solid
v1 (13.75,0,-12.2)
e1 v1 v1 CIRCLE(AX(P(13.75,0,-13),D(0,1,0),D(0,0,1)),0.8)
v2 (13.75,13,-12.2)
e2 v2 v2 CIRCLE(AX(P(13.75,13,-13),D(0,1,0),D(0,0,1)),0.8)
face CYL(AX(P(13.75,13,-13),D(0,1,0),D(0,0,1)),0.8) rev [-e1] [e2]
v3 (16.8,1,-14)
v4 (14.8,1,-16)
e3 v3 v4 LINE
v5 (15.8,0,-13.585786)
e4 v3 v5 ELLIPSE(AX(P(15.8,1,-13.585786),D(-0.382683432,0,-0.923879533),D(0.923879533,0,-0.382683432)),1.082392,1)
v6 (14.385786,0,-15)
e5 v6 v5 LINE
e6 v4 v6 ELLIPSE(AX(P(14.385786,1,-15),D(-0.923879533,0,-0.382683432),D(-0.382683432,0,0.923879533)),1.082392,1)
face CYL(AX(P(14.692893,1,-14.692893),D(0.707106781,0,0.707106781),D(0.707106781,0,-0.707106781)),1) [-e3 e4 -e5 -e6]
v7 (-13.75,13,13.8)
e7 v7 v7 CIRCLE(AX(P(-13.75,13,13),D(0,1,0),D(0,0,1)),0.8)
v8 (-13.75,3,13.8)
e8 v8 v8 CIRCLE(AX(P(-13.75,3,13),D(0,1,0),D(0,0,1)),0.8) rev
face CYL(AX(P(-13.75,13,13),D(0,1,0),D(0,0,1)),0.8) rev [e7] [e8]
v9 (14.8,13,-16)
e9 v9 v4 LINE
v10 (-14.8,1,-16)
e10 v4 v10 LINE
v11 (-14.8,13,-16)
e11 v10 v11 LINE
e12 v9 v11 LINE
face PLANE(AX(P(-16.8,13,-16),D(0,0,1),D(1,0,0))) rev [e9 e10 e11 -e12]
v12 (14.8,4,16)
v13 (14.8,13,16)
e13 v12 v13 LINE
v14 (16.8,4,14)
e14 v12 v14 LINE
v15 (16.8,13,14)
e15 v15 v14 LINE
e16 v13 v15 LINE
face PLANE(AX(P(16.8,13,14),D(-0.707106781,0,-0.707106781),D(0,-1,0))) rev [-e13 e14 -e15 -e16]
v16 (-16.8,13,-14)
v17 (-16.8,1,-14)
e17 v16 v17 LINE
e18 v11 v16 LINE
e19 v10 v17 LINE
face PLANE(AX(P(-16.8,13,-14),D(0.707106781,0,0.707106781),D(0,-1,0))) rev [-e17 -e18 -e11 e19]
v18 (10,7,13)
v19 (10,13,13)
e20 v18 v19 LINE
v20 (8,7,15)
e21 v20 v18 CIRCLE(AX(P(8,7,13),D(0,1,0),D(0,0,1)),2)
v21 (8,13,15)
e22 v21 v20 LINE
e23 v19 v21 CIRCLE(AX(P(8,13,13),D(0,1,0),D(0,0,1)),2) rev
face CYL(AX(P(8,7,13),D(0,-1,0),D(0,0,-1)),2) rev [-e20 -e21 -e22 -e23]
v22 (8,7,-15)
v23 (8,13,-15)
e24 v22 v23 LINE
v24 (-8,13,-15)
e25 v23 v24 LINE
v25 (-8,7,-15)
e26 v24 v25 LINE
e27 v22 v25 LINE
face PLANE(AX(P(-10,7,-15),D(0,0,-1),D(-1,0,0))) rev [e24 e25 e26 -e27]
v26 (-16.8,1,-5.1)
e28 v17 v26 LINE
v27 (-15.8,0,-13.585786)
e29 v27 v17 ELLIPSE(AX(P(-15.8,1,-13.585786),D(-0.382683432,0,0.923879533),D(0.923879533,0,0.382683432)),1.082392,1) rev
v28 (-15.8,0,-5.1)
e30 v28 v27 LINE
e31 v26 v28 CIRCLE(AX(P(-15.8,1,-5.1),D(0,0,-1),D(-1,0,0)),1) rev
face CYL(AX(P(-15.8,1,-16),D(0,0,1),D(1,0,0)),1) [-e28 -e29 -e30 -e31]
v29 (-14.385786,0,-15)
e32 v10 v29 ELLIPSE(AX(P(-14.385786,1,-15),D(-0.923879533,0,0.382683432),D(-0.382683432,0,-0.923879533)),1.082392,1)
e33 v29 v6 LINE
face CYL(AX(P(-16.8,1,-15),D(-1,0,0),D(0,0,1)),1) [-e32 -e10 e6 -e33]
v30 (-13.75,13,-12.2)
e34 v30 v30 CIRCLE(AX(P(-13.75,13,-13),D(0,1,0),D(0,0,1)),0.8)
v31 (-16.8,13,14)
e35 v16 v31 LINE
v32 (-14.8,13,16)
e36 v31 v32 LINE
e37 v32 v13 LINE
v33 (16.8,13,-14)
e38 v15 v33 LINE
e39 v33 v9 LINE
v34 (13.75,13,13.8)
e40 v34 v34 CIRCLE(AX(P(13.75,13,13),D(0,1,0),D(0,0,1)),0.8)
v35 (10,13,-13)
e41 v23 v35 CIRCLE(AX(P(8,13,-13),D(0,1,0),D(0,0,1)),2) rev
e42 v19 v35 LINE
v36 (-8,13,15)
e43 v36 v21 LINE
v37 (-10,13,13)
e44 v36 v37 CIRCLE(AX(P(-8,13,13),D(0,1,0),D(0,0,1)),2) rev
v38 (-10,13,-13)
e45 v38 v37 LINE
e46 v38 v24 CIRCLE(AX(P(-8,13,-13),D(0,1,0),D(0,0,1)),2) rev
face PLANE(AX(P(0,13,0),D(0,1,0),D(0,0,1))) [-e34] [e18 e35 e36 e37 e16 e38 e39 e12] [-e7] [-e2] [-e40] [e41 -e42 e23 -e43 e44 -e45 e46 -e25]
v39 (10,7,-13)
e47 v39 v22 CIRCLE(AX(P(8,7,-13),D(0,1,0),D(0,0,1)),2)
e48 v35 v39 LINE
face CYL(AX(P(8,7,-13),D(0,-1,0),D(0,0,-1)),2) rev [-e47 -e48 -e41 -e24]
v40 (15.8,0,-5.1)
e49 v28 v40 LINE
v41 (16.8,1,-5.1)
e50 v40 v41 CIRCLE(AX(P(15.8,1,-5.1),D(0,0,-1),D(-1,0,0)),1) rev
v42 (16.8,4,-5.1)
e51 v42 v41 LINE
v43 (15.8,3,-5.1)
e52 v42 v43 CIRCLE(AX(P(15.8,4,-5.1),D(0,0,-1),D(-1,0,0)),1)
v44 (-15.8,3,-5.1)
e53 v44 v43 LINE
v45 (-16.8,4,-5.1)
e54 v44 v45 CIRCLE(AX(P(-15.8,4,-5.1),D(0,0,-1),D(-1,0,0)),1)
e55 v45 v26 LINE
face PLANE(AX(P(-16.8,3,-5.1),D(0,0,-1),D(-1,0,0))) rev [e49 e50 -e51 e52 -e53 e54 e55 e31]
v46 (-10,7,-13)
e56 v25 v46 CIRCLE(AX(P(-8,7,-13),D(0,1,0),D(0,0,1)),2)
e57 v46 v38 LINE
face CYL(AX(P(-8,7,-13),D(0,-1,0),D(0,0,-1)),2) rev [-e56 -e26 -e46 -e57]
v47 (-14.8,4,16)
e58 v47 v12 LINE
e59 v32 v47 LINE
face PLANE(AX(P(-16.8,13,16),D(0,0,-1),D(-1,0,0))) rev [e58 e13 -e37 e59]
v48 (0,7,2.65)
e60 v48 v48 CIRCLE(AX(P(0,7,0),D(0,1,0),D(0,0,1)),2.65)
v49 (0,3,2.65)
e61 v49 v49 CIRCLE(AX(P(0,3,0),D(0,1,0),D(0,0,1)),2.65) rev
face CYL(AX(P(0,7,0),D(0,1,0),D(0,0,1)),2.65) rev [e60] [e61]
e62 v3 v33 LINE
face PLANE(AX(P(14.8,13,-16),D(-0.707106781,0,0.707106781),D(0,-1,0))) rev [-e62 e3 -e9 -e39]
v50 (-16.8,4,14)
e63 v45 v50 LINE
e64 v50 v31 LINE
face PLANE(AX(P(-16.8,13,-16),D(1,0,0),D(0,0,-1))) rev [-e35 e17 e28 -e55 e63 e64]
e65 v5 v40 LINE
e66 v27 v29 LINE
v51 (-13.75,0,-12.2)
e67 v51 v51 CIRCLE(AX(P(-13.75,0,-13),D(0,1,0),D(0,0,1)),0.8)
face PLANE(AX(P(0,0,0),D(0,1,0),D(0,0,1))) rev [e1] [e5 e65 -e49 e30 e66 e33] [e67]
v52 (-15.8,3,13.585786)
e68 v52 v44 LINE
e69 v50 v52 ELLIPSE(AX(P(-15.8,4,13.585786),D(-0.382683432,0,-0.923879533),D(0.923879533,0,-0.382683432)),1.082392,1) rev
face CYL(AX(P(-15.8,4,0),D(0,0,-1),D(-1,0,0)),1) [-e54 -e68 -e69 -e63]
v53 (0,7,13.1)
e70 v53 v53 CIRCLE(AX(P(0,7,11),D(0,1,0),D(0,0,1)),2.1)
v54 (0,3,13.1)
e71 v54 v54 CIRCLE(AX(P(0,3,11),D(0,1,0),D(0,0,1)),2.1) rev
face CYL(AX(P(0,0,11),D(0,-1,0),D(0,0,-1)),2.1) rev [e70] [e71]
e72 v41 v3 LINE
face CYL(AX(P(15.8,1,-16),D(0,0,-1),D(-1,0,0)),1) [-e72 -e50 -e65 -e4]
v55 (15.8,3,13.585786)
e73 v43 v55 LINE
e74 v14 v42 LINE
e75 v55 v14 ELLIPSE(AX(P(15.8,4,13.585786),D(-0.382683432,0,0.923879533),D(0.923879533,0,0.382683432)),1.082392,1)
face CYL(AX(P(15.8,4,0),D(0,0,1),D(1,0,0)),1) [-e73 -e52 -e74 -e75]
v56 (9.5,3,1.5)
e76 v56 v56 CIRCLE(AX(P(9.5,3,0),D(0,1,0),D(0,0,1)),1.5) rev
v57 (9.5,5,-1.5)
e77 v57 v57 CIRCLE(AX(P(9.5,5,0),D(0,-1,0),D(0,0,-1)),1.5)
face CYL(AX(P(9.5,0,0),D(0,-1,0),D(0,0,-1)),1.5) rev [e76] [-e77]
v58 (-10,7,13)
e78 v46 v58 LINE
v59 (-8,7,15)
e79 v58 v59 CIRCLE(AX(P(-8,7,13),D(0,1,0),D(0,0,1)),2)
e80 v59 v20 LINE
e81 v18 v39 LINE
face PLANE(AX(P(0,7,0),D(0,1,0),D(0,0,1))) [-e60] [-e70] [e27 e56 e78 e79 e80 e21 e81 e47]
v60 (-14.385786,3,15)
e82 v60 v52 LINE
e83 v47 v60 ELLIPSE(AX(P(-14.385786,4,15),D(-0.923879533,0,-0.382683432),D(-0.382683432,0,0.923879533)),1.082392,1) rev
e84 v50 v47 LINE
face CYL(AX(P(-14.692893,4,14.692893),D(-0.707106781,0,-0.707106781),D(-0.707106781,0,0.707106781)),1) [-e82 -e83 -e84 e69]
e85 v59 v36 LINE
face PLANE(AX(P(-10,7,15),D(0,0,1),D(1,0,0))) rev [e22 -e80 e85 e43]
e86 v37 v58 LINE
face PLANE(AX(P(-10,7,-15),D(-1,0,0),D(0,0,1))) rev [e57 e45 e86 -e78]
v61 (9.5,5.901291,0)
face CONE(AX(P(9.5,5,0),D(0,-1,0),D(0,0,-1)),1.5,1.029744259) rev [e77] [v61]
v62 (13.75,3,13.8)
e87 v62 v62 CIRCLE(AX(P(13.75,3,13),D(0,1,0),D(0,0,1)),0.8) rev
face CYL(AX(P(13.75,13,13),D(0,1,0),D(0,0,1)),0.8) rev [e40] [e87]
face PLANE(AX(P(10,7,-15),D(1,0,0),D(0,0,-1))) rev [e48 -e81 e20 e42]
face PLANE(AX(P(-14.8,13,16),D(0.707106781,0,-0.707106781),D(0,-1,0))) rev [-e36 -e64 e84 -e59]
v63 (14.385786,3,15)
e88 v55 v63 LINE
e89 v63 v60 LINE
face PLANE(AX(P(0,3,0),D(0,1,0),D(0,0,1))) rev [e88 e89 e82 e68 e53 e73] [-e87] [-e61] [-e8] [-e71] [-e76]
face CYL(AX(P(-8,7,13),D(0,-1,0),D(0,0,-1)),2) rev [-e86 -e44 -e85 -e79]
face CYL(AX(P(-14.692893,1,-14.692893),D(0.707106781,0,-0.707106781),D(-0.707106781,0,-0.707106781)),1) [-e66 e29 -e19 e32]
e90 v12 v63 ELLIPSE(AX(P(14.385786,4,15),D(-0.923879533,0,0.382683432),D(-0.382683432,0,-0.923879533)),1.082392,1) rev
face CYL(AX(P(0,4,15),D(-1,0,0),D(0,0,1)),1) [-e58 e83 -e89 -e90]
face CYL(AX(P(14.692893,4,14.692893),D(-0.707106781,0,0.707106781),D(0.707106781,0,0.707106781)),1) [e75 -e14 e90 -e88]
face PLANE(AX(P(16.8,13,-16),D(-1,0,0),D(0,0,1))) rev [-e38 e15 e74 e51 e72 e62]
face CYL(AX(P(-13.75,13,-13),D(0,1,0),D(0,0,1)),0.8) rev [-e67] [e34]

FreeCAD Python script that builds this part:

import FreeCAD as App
import Part
import Sketcher

V = App.Vector
Q = App.Units.Quantity


def edges_at(feature, points):
    """Names of the edges that pass closest to the given points."""
    edges = feature.Shape.Edges
    near = lambda p: min(range(len(edges)), key=lambda i: edges[i].distToShape(Part.Vertex(*p))[0])
    return sorted({f"Edge{near(p) + 1}" for p in points})


def add_polygon(sketch, points):
    """Adds a closed chain of lines whose ends are joined by coincident constraints."""
    first, n = sketch.GeometryCount, len(points)
    for a, b in zip(points, points[1:] + points[:1]):
        sketch.addGeometry(Part.LineSegment(App.Vector(*a, 0), App.Vector(*b, 0)), False)
    for i in range(n):
        sketch.addConstraint(Sketcher.Constraint("Coincident", first + i, 2, first + (i + 1) % n, 1))

doc = App.newDocument("Part")
body = doc.addObject("PartDesign::Body", "Body")

sketch1 = body.newObject("Sketcher::SketchObject", "Sketch")
sketch1.AttachmentSupport = (doc.getObject("XZ_Plane"), [""])
sketch1.MapMode = "FlatFace"
add_polygon(sketch1, [(-17, -16), (-17, 16), (17, 16), (17, -16)])
sketch1.addConstraint(Sketcher.Constraint("Vertical", 0))
sketch1.addConstraint(Sketcher.Constraint("Horizontal", 1))
sketch1.addConstraint(Sketcher.Constraint("Vertical", 2))
sketch1.addConstraint(Sketcher.Constraint("Horizontal", 3))
sketch1.addConstraint(Sketcher.Constraint("Symmetric", 0, 2, 2, 2, -1, 1))
sketch1.addConstraint(Sketcher.Constraint("DistanceY", 0, 1, 0, 2, Q("32 mm")))
sketch1.addConstraint(Sketcher.Constraint("DistanceX", 1, 1, 1, 2, Q("33.6 mm")))
pad1 = body.newObject("PartDesign::Pad", "Pad")
pad1.Profile = sketch1
pad1.Length = 13
pad1.Reversed = True

sketch2 = body.newObject("Sketcher::SketchObject", "Sketch001")
sketch2.AttachmentSupport = (doc.getObject("XZ_Plane"), [""])
sketch2.MapMode = "FlatFace"
sketch2.AttachmentOffset = App.Placement(V(0, 0, -13), App.Rotation())
add_polygon(sketch2, [(-10, -15), (-10, 15), (10, 15), (10, -15)])
sketch2.addConstraint(Sketcher.Constraint("Vertical", 0))
sketch2.addConstraint(Sketcher.Constraint("Horizontal", 1))
sketch2.addConstraint(Sketcher.Constraint("Vertical", 2))
sketch2.addConstraint(Sketcher.Constraint("Horizontal", 3))
sketch2.addConstraint(Sketcher.Constraint("Symmetric", 0, 2, 2, 2, -1, 1))
sketch2.addConstraint(Sketcher.Constraint("DistanceX", 1, 1, 1, 2, Q("20 mm")))
sketch2.addConstraint(Sketcher.Constraint("DistanceY", 0, 1, 0, 2, Q("30 mm")))
pocket1 = body.newObject("PartDesign::Pocket", "Pocket")
pocket1.Profile = sketch2
pocket1.Length = 6
pocket1.Reversed = True

sketch3 = body.newObject("Sketcher::SketchObject", "Sketch002")
sketch3.AttachmentSupport = (doc.getObject("XZ_Plane"), [""])
sketch3.MapMode = "FlatFace"
sketch3.AttachmentOffset = App.Placement(V(0, 0, -13), App.Rotation())
sketch3.addGeometry(Part.Circle(V(-13.8, -13, 0), V(0, 0, 1), 0.8), False)
sketch3.addGeometry(Part.Circle(V(13.8, -13, 0), V(0, 0, 1), 0.8), False)
sketch3.addGeometry(Part.Circle(V(13.8, 13, 0), V(0, 0, 1), 0.8), False)
sketch3.addGeometry(Part.Circle(V(-13.8, 13, 0), V(0, 0, 1), 0.8), False)
sketch3.addConstraint(Sketcher.Constraint("Equal", 0, 1))
sketch3.addConstraint(Sketcher.Constraint("Equal", 1, 2))
sketch3.addConstraint(Sketcher.Constraint("Equal", 2, 3))
sketch3.addConstraint(Sketcher.Constraint("Symmetric", 0, 3, 2, 3, -1, 1))
sketch3.addConstraint(Sketcher.Constraint("Symmetric", 1, 3, 3, 3, -1, 1))
sketch3.addConstraint(Sketcher.Constraint("Symmetric", 0, 3, 1, 3, -2))
sketch3.addConstraint(Sketcher.Constraint("Diameter", 0, Q("1.6 mm")))
sketch3.addConstraint(Sketcher.Constraint("DistanceY", 0, 3, -1, 1, Q("13 mm")))
sketch3.addConstraint(Sketcher.Constraint("DistanceX", 0, 3, 1, 3, Q("27.5 mm")))
doc.recompute()
hole = body.newObject("PartDesign::Hole", "Hole")
hole.Profile = sketch3
hole.ThreadType = "None"
hole.Diameter = 1.6
hole.DepthType = "ThroughAll"
hole.Reversed = True
doc.recompute()

fillet = body.newObject("PartDesign::Fillet", "Fillet")
fillet.Base = (hole, edges_at(hole, [
    (-10, 10, 15),
    (-10, 10, -15),
    (10, 10, -15),
    (10, 10, 15),
]))
fillet.Radius = 2

sketch4 = body.newObject("Sketcher::SketchObject", "Sketch003")
sketch4.AttachmentSupport = (doc.getObject("XZ_Plane"), [""])
sketch4.MapMode = "FlatFace"
sketch4.AttachmentOffset = App.Placement(V(0, 0, -7), App.Rotation())
sketch4.addGeometry(Part.Circle(V(0, 0, 0), V(0, 0, 1), 2.6), False)
sketch4.addConstraint(Sketcher.Constraint("Coincident", 0, 3, -1, 1))
sketch4.addConstraint(Sketcher.Constraint("Diameter", 0, Q("5.3 mm")))
doc.recompute()
hole2 = body.newObject("PartDesign::Hole", "Hole001")
hole2.Profile = sketch4
hole2.ThreadType = "None"
hole2.Diameter = 5.3
hole2.DepthType = "ThroughAll"
hole2.Reversed = True

sketch5 = body.newObject("Sketcher::SketchObject", "Sketch004")
sketch5.AttachmentSupport = (doc.getObject("XZ_Plane"), [""])
sketch5.MapMode = "FlatFace"
sketch5.addGeometry(Part.Circle(V(9.5, 0, 0), V(0, 0, 1), 1.5), False)
sketch5.addConstraint(Sketcher.Constraint("PointOnObject", 0, 3, -1))
sketch5.addConstraint(Sketcher.Constraint("Diameter", 0, Q("3 mm")))
sketch5.addConstraint(Sketcher.Constraint("DistanceX", -1, 1, 0, 3, Q("9.5 mm")))
doc.recompute()
hole3 = body.newObject("PartDesign::Hole", "Hole002")
hole3.Profile = sketch5
hole3.ThreadType = "None"
hole3.Diameter = 3
hole3.DepthType = "Dimension"
hole3.Depth = 5
hole3.DrillPoint = "Angled"
hole3.DrillPointAngle = 118

sketch6 = body.newObject("Sketcher::SketchObject", "Sketch005")
sketch6.AttachmentSupport = (doc.getObject("XZ_Plane"), [""])
sketch6.MapMode = "FlatFace"
sketch6.addGeometry(Part.Circle(V(0, 11, 0), V(0, 0, 1), 2.1), False)
sketch6.addConstraint(Sketcher.Constraint("PointOnObject", 0, 3, -2))
sketch6.addConstraint(Sketcher.Constraint("Diameter", 0, Q("4.2 mm")))
sketch6.addConstraint(Sketcher.Constraint("DistanceY", -1, 1, 0, 3, Q("11 mm")))
doc.recompute()
hole4 = body.newObject("PartDesign::Hole", "Hole003")
hole4.Profile = sketch6
hole4.ThreadType = "None"
hole4.Diameter = 4.2
hole4.DepthType = "ThroughAll"

sketch7 = body.newObject("Sketcher::SketchObject", "Sketch006")
sketch7.AttachmentSupport = (doc.getObject("XZ_Plane"), [""])
sketch7.MapMode = "FlatFace"
add_polygon(sketch7, [(-17, 16), (-17, -5), (17, -5), (17, 16)])
sketch7.addConstraint(Sketcher.Constraint("Vertical", 0))
sketch7.addConstraint(Sketcher.Constraint("Horizontal", 1))
sketch7.addConstraint(Sketcher.Constraint("Vertical", 2))
sketch7.addConstraint(Sketcher.Constraint("Horizontal", 3))
sketch7.addConstraint(Sketcher.Constraint("DistanceX", 1, 1, 1, 2, Q("33.6 mm")))
sketch7.addConstraint(Sketcher.Constraint("DistanceY", 0, 2, 0, 1, Q("21.1 mm")))
sketch7.addConstraint(Sketcher.Constraint("DistanceY", -1, 1, 2, 2, Q("16 mm")))
sketch7.addConstraint(Sketcher.Constraint("DistanceX", 0, 2, -1, 1, Q("16.8 mm")))
pocket2 = body.newObject("PartDesign::Pocket", "Pocket001")
pocket2.Profile = sketch7
pocket2.Length = 3
doc.recompute()

chamfer = body.newObject("PartDesign::Chamfer", "Chamfer")
chamfer.Base = (pocket2, edges_at(pocket2, [
    (-16.8, 6.5, -16),
    (16.8, 6.5, -16),
    (16.8, 8, 16),
    (-16.8, 8, 16),
]))
chamfer.Size = 2
doc.recompute()

fillet2 = body.newObject("PartDesign::Fillet", "Fillet001")
fillet2.Base = (chamfer, edges_at(chamfer, [
    (0, 3, 16),
    (-16.8, 3, 4.45),
    (15.8, 3, 15),
    (-15.8, 3, 15),
    (-16.8, 0, -9.55),
    (0, 0, -16),
    (-15.8, 0, -15),
    (15.8, 0, -15),
    (16.8, 0, -9.55),
    (16.8, 3, 4.45),
]))
fillet2.Radius = 1

doc.recompute()
